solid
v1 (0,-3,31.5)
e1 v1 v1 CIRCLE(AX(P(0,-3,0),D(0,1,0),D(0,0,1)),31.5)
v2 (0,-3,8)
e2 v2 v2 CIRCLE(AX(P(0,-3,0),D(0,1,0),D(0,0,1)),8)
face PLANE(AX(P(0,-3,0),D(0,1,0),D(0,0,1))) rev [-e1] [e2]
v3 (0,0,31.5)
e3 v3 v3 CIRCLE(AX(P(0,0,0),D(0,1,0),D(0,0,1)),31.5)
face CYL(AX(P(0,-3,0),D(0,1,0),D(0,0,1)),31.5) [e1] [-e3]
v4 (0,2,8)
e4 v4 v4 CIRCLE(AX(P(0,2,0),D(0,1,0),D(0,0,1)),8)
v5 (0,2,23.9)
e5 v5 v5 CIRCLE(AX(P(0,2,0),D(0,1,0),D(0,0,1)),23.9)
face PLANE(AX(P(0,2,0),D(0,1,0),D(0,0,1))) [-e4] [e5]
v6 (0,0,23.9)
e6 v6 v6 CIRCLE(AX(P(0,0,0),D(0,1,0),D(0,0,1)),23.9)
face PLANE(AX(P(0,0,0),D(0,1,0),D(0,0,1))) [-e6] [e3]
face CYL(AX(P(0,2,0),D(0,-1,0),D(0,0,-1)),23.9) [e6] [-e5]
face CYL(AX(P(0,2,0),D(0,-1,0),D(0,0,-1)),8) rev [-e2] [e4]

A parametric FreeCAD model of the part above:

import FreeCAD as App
import Part
import Sketcher
from FreeCAD import Vector
Q = App.Units.Quantity

doc = App.newDocument("Part")
body = doc.addObject("PartDesign::Body", "Body")

sketch1 = body.newObject("Sketcher::SketchObject", "Sketch")
sketch1.AttachmentSupport = (doc.getObject("XZ_Plane"), [""])
sketch1.MapMode = "FlatFace"
sketch1.addGeometry([
    Part.Circle(Vector(0, 0, 0), Vector(0, 0, 1), 24),
    Part.Circle(Vector(0, 0, 0), Vector(0, 0, 1), 8),
], False)
sketch1.addConstraint([
    Sketcher.Constraint("Coincident", 0, 3, -1, 1),
    Sketcher.Constraint("Coincident", 1, 3, -1, 1),
    Sketcher.Constraint("Diameter", 1, Q("16 mm")),
    Sketcher.Constraint("Diameter", 0, Q("47.8 mm")),
])
pad1 = body.newObject("PartDesign::Pad", "Pad")
pad1.Profile = sketch1
pad1.Length = 2
pad1.Reversed = True

sketch2 = body.newObject("Sketcher::SketchObject", "Sketch001")
sketch2.AttachmentSupport = (doc.getObject("XZ_Plane"), [""])
sketch2.MapMode = "FlatFace"
sketch2.addGeometry([
    Part.Circle(Vector(0, 0, 0), Vector(0, 0, 1), 32),
    Part.Circle(Vector(0, 0, 0), Vector(0, 0, 1), 8),
], False)
sketch2.addConstraint([
    Sketcher.Constraint("Coincident", 0, 3, -1, 1),
    Sketcher.Constraint("Coincident", 1, 3, -1, 1),
    Sketcher.Constraint("Diameter", 0, Q("63 mm")),
    Sketcher.Constraint("Diameter", 1, Q("16 mm")),
])
pad2 = body.newObject("PartDesign::Pad", "Pad001")
pad2.Profile = sketch2
pad2.Length = 3

doc.recompute()
